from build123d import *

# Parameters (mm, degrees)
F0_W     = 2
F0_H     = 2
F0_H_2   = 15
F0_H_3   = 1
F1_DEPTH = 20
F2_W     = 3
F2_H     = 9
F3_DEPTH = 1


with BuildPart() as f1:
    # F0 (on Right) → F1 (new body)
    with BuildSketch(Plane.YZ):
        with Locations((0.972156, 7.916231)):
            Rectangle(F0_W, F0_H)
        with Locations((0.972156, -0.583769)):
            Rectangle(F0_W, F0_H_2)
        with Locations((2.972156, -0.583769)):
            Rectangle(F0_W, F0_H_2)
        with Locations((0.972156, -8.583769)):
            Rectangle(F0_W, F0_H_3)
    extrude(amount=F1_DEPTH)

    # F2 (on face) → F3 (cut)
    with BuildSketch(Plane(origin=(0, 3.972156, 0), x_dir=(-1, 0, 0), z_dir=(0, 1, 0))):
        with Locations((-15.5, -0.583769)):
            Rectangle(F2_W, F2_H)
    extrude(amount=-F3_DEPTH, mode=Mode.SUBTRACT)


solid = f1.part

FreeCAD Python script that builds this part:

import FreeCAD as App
import Part
import Sketcher
from FreeCAD import Vector
Q = App.Units.Quantity

doc = App.newDocument("Part")
body = doc.addObject("PartDesign::Body", "Body")

# Sketch on YZ plane
sketch1 = body.newObject("Sketcher::SketchObject", "Sketch")
sketch1.AttachmentSupport = (doc.getObject("YZ_Plane"), [""])
sketch1.MapMode = "FlatFace"
sketch1.addGeometry([
    Part.LineSegment(Vector(0, 8.9, 0), Vector(0, -9.1, 0)),  # 0
    Part.LineSegment(Vector(0, -9.1, 0), Vector(2, -9.1, 0)),  # 1
    Part.LineSegment(Vector(2, -9.1, 0), Vector(2, -8.1, 0)),  # 2
    Part.LineSegment(Vector(2, -8.1, 0), Vector(4, -8.1, 0)),  # 3
    Part.LineSegment(Vector(4, -8.1, 0), Vector(4, 6.9, 0)),  # 4
    Part.LineSegment(Vector(4, 6.9, 0), Vector(2, 6.9, 0)),  # 5
    Part.LineSegment(Vector(2, 6.9, 0), Vector(2, 8.9, 0)),  # 6
    Part.LineSegment(Vector(2, 8.9, 0), Vector(0, 8.9, 0)),  # 7
], False)
sketch1.addConstraint([
    Sketcher.Constraint("Coincident", 0, 2, 1, 1),
    Sketcher.Constraint("Coincident", 1, 2, 2, 1),
    Sketcher.Constraint("Coincident", 2, 2, 3, 1),
    Sketcher.Constraint("Coincident", 3, 2, 4, 1),
    Sketcher.Constraint("Coincident", 4, 2, 5, 1),
    Sketcher.Constraint("Coincident", 5, 2, 6, 1),
    Sketcher.Constraint("Coincident", 6, 2, 7, 1),
    Sketcher.Constraint("Coincident", 7, 2, 0, 1),
    Sketcher.Constraint("Vertical", 0),
    Sketcher.Constraint("Horizontal", 1),
    Sketcher.Constraint("Vertical", 2),
    Sketcher.Constraint("Horizontal", 3),
    Sketcher.Constraint("Vertical", 4),
    Sketcher.Constraint("Horizontal", 5),
    Sketcher.Constraint("Vertical", 6),
    Sketcher.Constraint("Horizontal", 7),
    Sketcher.Constraint("Vertical", 2, 2, 5, 2),
    Sketcher.Constraint("Equal", 1, 3),
    Sketcher.Constraint("Equal", 7, 6),
    Sketcher.Constraint("DistanceX", 1, 1, 1, 2, Q("2 mm")),
    Sketcher.Constraint("DistanceY", 0, 2, 0, 1, Q("18 mm")),
    Sketcher.Constraint("DistanceY", 2, 1, 2, 2, Q("1 mm")),
    Sketcher.Constraint("DistanceY", 0, 2, -1, 1, Q("9.083769 mm")),
    Sketcher.Constraint("DistanceX", 0, 2, -1, 1, Q("0.027844 mm")),
])
pad1 = body.newObject("PartDesign::Pad", "Pad")
pad1.Profile = sketch1
pad1.Length = 20

# Sketch on XZ plane
sketch2 = body.newObject("Sketcher::SketchObject", "Sketch001")
sketch2.AttachmentSupport = (doc.getObject("XZ_Plane"), [""])
sketch2.MapMode = "FlatFace"
sketch2.AttachmentOffset = App.Placement(Vector(0, 0, -3.972156), App.Rotation())
sketch2.addGeometry([
    Part.LineSegment(Vector(17, 3.9, 0), Vector(17, -5.1, 0)),
    Part.LineSegment(Vector(17, -5.1, 0), Vector(14, -5.1, 0)),
    Part.LineSegment(Vector(14, -5.1, 0), Vector(14, 3.9, 0)),
    Part.LineSegment(Vector(14, 3.9, 0), Vector(17, 3.9, 0)),
], False)
sketch2.addConstraint([
    Sketcher.Constraint("Coincident", 0, 2, 1, 1),
    Sketcher.Constraint("Coincident", 1, 2, 2, 1),
    Sketcher.Constraint("Coincident", 2, 2, 3, 1),
    Sketcher.Constraint("Coincident", 3, 2, 0, 1),
    Sketcher.Constraint("Vertical", 0),
    Sketcher.Constraint("Horizontal", 1),
    Sketcher.Constraint("Vertical", 2),
    Sketcher.Constraint("Horizontal", 3),
    Sketcher.Constraint("DistanceX", 1, 2, 1, 1, Q("3 mm")),
    Sketcher.Constraint("DistanceY", 0, 2, 0, 1, Q("9 mm")),
    Sketcher.Constraint("DistanceX", -1, 1, 0, 2, Q("17 mm")),
    Sketcher.Constraint("DistanceY", 0, 2, -1, 1, Q("5.083769 mm")),
])
pocket1 = body.newObject("PartDesign::Pocket", "Pocket")
pocket1.Profile = sketch2
pocket1.Length = 1
pocket1.Reversed = True

doc.recompute()
